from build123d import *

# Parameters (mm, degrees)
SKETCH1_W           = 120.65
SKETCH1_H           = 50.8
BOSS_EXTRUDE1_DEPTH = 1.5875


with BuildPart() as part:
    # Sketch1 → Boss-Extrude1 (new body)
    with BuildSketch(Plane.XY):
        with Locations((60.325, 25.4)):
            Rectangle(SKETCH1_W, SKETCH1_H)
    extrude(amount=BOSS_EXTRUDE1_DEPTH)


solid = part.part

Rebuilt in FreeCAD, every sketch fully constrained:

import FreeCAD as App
import Part
import Sketcher

V = App.Vector
Q = App.Units.Quantity

doc = App.newDocument("Part")
params = doc.addObject("Spreadsheet::Sheet", "Params")
for row, (alias, value) in enumerate([
    ("sketch1_height", "2 in"),
    ("sketch1_width", "4.75 in"),
    ("pad1_length", "0.0625 in"),
], start=1):
    params.set(f"A{row}", alias)
    params.set(f"B{row}", "=" + value)
    params.setAlias(f"B{row}", alias)

body = doc.addObject("PartDesign::Body", "Body")

sketch1 = body.newObject("Sketcher::SketchObject", "Sketch")
sketch1.AttachmentSupport = (doc.getObject("XY_Plane"), [""])
sketch1.MapMode = "FlatFace"
sketch1.addGeometry([
    Part.LineSegment(V(0, 51, 0), V(0, 0, 0)),
    Part.LineSegment(V(0, 0, 0), V(121, 0, 0)),
    Part.LineSegment(V(121, 0, 0), V(121, 51, 0)),
    Part.LineSegment(V(121, 51, 0), V(0, 51, 0)),
], False)
sketch1.addConstraint([
    Sketcher.Constraint("Coincident", 0, 2, 1, 1),
    Sketcher.Constraint("Coincident", 1, 2, 2, 1),
    Sketcher.Constraint("Coincident", 2, 2, 3, 1),
    Sketcher.Constraint("Coincident", 3, 2, 0, 1),
    Sketcher.Constraint("Vertical", 0),
    Sketcher.Constraint("Horizontal", 1),
    Sketcher.Constraint("Vertical", 2),
    Sketcher.Constraint("Horizontal", 3),
    Sketcher.Constraint("Coincident", 0, 2, -1, 1),
    Sketcher.Constraint("DistanceY", 0, 2, 0, 1, Q("2 in")),
    Sketcher.Constraint("DistanceX", 1, 1, 1, 2, Q("4.75 in")),
])
sketch1.setExpression("Constraints[9]", "Params.sketch1_height")
sketch1.setExpression("Constraints[10]", "Params.sketch1_width")
pad1 = body.newObject("PartDesign::Pad", "Pad")
pad1.Profile = sketch1
pad1.setExpression("Length", "Params.pad1_length")

doc.recompute()
